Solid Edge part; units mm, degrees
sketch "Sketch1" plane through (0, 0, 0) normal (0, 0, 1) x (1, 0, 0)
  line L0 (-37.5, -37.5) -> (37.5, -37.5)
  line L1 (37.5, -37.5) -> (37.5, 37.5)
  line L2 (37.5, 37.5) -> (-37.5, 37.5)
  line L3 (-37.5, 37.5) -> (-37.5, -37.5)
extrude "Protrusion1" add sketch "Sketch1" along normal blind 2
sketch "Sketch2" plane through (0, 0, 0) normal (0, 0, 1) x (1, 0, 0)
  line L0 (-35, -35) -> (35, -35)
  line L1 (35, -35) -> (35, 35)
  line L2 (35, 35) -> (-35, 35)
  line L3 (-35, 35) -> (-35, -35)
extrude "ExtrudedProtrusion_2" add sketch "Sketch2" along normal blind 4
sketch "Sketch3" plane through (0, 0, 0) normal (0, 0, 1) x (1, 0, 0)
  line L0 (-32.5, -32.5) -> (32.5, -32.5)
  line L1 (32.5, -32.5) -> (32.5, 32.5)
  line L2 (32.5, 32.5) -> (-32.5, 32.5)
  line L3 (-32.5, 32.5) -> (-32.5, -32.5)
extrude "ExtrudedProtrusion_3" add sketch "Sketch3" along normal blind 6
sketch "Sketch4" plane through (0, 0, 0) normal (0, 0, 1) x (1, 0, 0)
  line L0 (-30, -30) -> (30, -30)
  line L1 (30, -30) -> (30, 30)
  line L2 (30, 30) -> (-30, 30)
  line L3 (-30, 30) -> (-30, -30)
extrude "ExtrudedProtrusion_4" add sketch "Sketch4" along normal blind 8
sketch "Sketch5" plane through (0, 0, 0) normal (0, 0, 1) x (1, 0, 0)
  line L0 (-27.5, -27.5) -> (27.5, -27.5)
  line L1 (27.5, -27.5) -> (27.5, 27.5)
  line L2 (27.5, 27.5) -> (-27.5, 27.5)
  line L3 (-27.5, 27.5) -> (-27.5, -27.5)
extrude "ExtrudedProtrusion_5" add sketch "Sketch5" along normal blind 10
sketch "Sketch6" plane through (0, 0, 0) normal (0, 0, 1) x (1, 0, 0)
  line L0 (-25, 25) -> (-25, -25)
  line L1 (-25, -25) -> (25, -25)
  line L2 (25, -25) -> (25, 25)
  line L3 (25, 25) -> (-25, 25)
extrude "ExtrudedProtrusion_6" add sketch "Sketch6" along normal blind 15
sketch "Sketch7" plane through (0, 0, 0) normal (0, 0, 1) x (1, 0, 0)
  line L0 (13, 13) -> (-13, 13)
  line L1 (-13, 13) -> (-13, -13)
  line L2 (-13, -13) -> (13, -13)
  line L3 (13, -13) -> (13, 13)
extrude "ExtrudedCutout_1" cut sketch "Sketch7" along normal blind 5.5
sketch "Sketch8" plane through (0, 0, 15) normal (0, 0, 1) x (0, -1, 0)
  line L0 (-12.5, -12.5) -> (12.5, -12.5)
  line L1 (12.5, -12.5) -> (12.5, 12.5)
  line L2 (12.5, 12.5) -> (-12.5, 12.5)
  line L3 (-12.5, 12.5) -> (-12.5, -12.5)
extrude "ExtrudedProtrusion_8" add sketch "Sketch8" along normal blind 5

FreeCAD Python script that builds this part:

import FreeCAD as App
import Part
import Sketcher


def add_polygon(sketch, points):
    """Adds a closed chain of lines whose ends are joined by coincident constraints."""
    first, n = sketch.GeometryCount, len(points)
    for a, b in zip(points, points[1:] + points[:1]):
        sketch.addGeometry(Part.LineSegment(App.Vector(*a, 0), App.Vector(*b, 0)), False)
    for i in range(n):
        sketch.addConstraint(Sketcher.Constraint("Coincident", first + i, 2, first + (i + 1) % n, 1))

doc = App.newDocument("Part")
params = doc.addObject("Spreadsheet::Sheet", "Params")
for row, (alias, value) in enumerate([
    ("sketch1_width", "75 mm"),
    ("pad1_length", "2 mm"),
    ("sketch2_width", "70 mm"),
    ("pad2_length", "4 mm"),
    ("sketch3_width", "65 mm"),
    ("pad3_length", "6 mm"),
    ("sketch4_width", "60 mm"),
    ("pad4_length", "8 mm"),
    ("sketch5_width", "55 mm"),
    ("pad5_length", "10 mm"),
    ("sketch6_width", "50 mm"),
    ("pad6_length", "15 mm"),
    ("sketch7_width", "26 mm"),
    ("pocket1_length", "5.5 mm"),
    ("sketch8_width", "25 mm"),
    ("pad7_length", "5 mm"),
], start=1):
    params.set(f"A{row}", alias)
    params.set(f"B{row}", "=" + value)
    params.setAlias(f"B{row}", alias)

body = doc.addObject("PartDesign::Body", "Body")

sketch1 = body.newObject("Sketcher::SketchObject", "Sketch")
sketch1.AttachmentSupport = (doc.getObject("XY_Plane"), [""])
sketch1.MapMode = "FlatFace"
add_polygon(sketch1, [(-37.5, 37.5), (-37.5, -37.5), (37.5, -37.5), (37.5, 37.5)])
sketch1.addConstraint([
    Sketcher.Constraint("Vertical", 0),
    Sketcher.Constraint("Horizontal", 1),
    Sketcher.Constraint("Vertical", 2),
    Sketcher.Constraint("Horizontal", 3),
    Sketcher.Constraint("Symmetric", 0, 2, 2, 2, -1, 1),
    Sketcher.Constraint("Equal", 3, 0),
    Sketcher.Constraint("DistanceX", 1, 1, 1, 2, 75.0),
])
sketch1.setExpression("Constraints[10]", "Params.sketch1_width")
pad1 = body.newObject("PartDesign::Pad", "Pad")
pad1.Profile = sketch1
pad1.setExpression("Length", "Params.pad1_length")

sketch2 = body.newObject("Sketcher::SketchObject", "Sketch001")
sketch2.AttachmentSupport = (doc.getObject("XY_Plane"), [""])
sketch2.MapMode = "FlatFace"
add_polygon(sketch2, [(-35, 35), (-35, -35), (35, -35), (35, 35)])
sketch2.addConstraint([
    Sketcher.Constraint("Vertical", 0),
    Sketcher.Constraint("Horizontal", 1),
    Sketcher.Constraint("Vertical", 2),
    Sketcher.Constraint("Horizontal", 3),
    Sketcher.Constraint("Symmetric", 0, 2, 2, 2, -1, 1),
    Sketcher.Constraint("Equal", 3, 0),
    Sketcher.Constraint("DistanceX", 1, 1, 1, 2, 70.0),
])
sketch2.setExpression("Constraints[10]", "Params.sketch2_width")
pad2 = body.newObject("PartDesign::Pad", "Pad001")
pad2.Profile = sketch2
pad2.setExpression("Length", "Params.pad2_length")

sketch3 = body.newObject("Sketcher::SketchObject", "Sketch002")
sketch3.AttachmentSupport = (doc.getObject("XY_Plane"), [""])
sketch3.MapMode = "FlatFace"
add_polygon(sketch3, [(-32.5, 32.5), (-32.5, -32.5), (32.5, -32.5), (32.5, 32.5)])
sketch3.addConstraint([
    Sketcher.Constraint("Vertical", 0),
    Sketcher.Constraint("Horizontal", 1),
    Sketcher.Constraint("Vertical", 2),
    Sketcher.Constraint("Horizontal", 3),
    Sketcher.Constraint("Symmetric", 0, 2, 2, 2, -1, 1),
    Sketcher.Constraint("Equal", 3, 0),
    Sketcher.Constraint("DistanceX", 1, 1, 1, 2, 65.0),
])
sketch3.setExpression("Constraints[10]", "Params.sketch3_width")
pad3 = body.newObject("PartDesign::Pad", "Pad002")
pad3.Profile = sketch3
pad3.setExpression("Length", "Params.pad3_length")

sketch4 = body.newObject("Sketcher::SketchObject", "Sketch003")
sketch4.AttachmentSupport = (doc.getObject("XY_Plane"), [""])
sketch4.MapMode = "FlatFace"
add_polygon(sketch4, [(-30, 30), (-30, -30), (30, -30), (30, 30)])
sketch4.addConstraint([
    Sketcher.Constraint("Vertical", 0),
    Sketcher.Constraint("Horizontal", 1),
    Sketcher.Constraint("Vertical", 2),
    Sketcher.Constraint("Horizontal", 3),
    Sketcher.Constraint("Symmetric", 0, 2, 2, 2, -1, 1),
    Sketcher.Constraint("Equal", 3, 0),
    Sketcher.Constraint("DistanceX", 1, 1, 1, 2, 60.0),
])
sketch4.setExpression("Constraints[10]", "Params.sketch4_width")
pad4 = body.newObject("PartDesign::Pad", "Pad003")
pad4.Profile = sketch4
pad4.setExpression("Length", "Params.pad4_length")

sketch5 = body.newObject("Sketcher::SketchObject", "Sketch004")
sketch5.AttachmentSupport = (doc.getObject("XY_Plane"), [""])
sketch5.MapMode = "FlatFace"
add_polygon(sketch5, [(-27.5, 27.5), (-27.5, -27.5), (27.5, -27.5), (27.5, 27.5)])
sketch5.addConstraint([
    Sketcher.Constraint("Vertical", 0),
    Sketcher.Constraint("Horizontal", 1),
    Sketcher.Constraint("Vertical", 2),
    Sketcher.Constraint("Horizontal", 3),
    Sketcher.Constraint("Symmetric", 0, 2, 2, 2, -1, 1),
    Sketcher.Constraint("Equal", 3, 0),
    Sketcher.Constraint("DistanceX", 1, 1, 1, 2, 55.0),
])
sketch5.setExpression("Constraints[10]", "Params.sketch5_width")
pad5 = body.newObject("PartDesign::Pad", "Pad004")
pad5.Profile = sketch5
pad5.setExpression("Length", "Params.pad5_length")

sketch6 = body.newObject("Sketcher::SketchObject", "Sketch005")
sketch6.AttachmentSupport = (doc.getObject("XY_Plane"), [""])
sketch6.MapMode = "FlatFace"
add_polygon(sketch6, [(25, 25), (-25, 25), (-25, -25), (25, -25)])
sketch6.addConstraint([
    Sketcher.Constraint("Horizontal", 0),
    Sketcher.Constraint("Vertical", 1),
    Sketcher.Constraint("Horizontal", 2),
    Sketcher.Constraint("Vertical", 3),
    Sketcher.Constraint("Symmetric", 0, 2, 2, 2, -1, 1),
    Sketcher.Constraint("Equal", 2, 1),
    Sketcher.Constraint("DistanceX", 0, 2, 0, 1, 50.0),
])
sketch6.setExpression("Constraints[10]", "Params.sketch6_width")
pad6 = body.newObject("PartDesign::Pad", "Pad005")
pad6.Profile = sketch6
pad6.setExpression("Length", "Params.pad6_length")

sketch7 = body.newObject("Sketcher::SketchObject", "Sketch006")
sketch7.AttachmentSupport = (doc.getObject("XY_Plane"), [""])
sketch7.MapMode = "FlatFace"
add_polygon(sketch7, [(13, -13), (13, 13), (-13, 13), (-13, -13)])
sketch7.addConstraint([
    Sketcher.Constraint("Vertical", 0),
    Sketcher.Constraint("Horizontal", 1),
    Sketcher.Constraint("Vertical", 2),
    Sketcher.Constraint("Horizontal", 3),
    Sketcher.Constraint("Symmetric", 0, 2, 2, 2, -1, 1),
    Sketcher.Constraint("Equal", 3, 0),
    Sketcher.Constraint("DistanceX", 1, 2, 1, 1, 26.0),
])
sketch7.setExpression("Constraints[10]", "Params.sketch7_width")
pocket1 = body.newObject("PartDesign::Pocket", "Pocket")
pocket1.Profile = sketch7
pocket1.setExpression("Length", "Params.pocket1_length")
pocket1.Reversed = True

sketch8 = body.newObject("Sketcher::SketchObject", "Sketch007")
sketch8.AttachmentSupport = (doc.getObject("XY_Plane"), [""])
sketch8.MapMode = "FlatFace"
sketch8.AttachmentOffset = App.Placement(App.Vector(0, 0, 15), App.Rotation())
add_polygon(sketch8, [(12.5, 12.5), (-12.5, 12.5), (-12.5, -12.5), (12.5, -12.5)])
sketch8.addConstraint([
    Sketcher.Constraint("Horizontal", 0),
    Sketcher.Constraint("Vertical", 1),
    Sketcher.Constraint("Horizontal", 2),
    Sketcher.Constraint("Vertical", 3),
    Sketcher.Constraint("Symmetric", 0, 2, 2, 2, -1, 1),
    Sketcher.Constraint("Equal", 2, 1),
    Sketcher.Constraint("DistanceX", 0, 2, 0, 1, 25.0),
])
sketch8.setExpression("Constraints[10]", "Params.sketch8_width")
pad7 = body.newObject("PartDesign::Pad", "Pad006")
pad7.Profile = sketch8
pad7.setExpression("Length", "Params.pad7_length")

doc.recompute()
